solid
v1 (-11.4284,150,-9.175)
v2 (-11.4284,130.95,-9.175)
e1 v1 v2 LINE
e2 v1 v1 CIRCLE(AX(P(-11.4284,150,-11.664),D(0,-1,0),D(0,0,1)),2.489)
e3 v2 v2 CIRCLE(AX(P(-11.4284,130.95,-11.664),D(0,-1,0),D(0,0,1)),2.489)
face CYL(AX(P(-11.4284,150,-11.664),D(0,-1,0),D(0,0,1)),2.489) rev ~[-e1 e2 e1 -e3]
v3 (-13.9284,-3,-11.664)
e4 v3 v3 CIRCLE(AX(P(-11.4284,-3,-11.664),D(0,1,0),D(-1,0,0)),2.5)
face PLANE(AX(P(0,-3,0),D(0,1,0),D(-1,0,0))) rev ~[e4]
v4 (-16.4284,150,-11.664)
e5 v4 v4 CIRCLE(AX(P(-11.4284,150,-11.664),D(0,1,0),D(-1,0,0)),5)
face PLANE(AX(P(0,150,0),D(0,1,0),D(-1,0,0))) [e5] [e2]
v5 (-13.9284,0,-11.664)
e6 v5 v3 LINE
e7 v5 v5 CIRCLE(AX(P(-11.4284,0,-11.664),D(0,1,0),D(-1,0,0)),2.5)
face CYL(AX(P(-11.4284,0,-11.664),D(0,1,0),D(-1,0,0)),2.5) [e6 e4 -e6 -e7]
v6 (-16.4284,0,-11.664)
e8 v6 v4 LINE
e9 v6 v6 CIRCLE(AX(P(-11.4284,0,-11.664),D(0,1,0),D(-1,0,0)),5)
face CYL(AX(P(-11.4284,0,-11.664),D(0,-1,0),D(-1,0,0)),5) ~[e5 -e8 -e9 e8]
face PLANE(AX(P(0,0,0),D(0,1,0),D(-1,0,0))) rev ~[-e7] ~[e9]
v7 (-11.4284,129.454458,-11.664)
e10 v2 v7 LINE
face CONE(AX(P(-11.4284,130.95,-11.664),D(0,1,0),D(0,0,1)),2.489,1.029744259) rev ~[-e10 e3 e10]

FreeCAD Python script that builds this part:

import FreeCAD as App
import Part
import Sketcher
from FreeCAD import Vector

doc = App.newDocument("Part")
body = doc.addObject("PartDesign::Body", "Body")

sketch1 = body.newObject("Sketcher::SketchObject", "Sketch")
sketch1.AttachmentSupport = (doc.getObject("XZ_Plane"), [""])
sketch1.MapMode = "FlatFace"
sketch1.addGeometry(Part.Circle(Vector(-11, -12, 0), Vector(0, 0, 1), 5), False)
sketch1.addConstraint([
    Sketcher.Constraint("Diameter", 0, 10.0),
    Sketcher.Constraint("DistanceY", 0, 3, -1, 1, 11.664),
    Sketcher.Constraint("DistanceX", 0, 3, -1, 1, 11.4284),
])
pad1 = body.newObject("PartDesign::Pad", "Pad")
pad1.Profile = sketch1
pad1.Length = 150
pad1.Reversed = True

sketch2 = body.newObject("Sketcher::SketchObject", "Sketch001")
sketch2.AttachmentSupport = (doc.getObject("XZ_Plane"), [""])
sketch2.MapMode = "FlatFace"
sketch2.addGeometry(Part.Circle(Vector(-11.4, -11.7, 0), Vector(0, 0, 1), 2.5), False)
sketch2.addConstraint([
    Sketcher.Constraint("Diameter", 0, 5.0),
    Sketcher.Constraint("DistanceY", 0, 3, -1, 1, 11.664),
    Sketcher.Constraint("DistanceX", 0, 3, -1, 1, 11.4284),
])
pad2 = body.newObject("PartDesign::Pad", "Pad001")
pad2.Profile = sketch2
pad2.Length = 3

sketch3 = body.newObject("Sketcher::SketchObject", "Sketch002")
sketch3.AttachmentSupport = (doc.getObject("XZ_Plane"), [""])
sketch3.MapMode = "FlatFace"
sketch3.AttachmentOffset = App.Placement(Vector(0, 0, -150), App.Rotation())
sketch3.addGeometry(Part.Circle(Vector(-11.4, -11.7, 0), Vector(0, 0, 1), 2.5), False)
sketch3.addConstraint([
    Sketcher.Constraint("Diameter", 0, 4.978),
    Sketcher.Constraint("DistanceY", 0, 3, -1, 1, 11.664),
    Sketcher.Constraint("DistanceX", 0, 3, -1, 1, 11.4284),
])
doc.recompute()
hole = body.newObject("PartDesign::Hole", "Hole")
hole.Profile = sketch3
hole.ThreadType = "None"
hole.Diameter = 4.978
hole.DepthType = "Dimension"
hole.Depth = 19.05
hole.DrillPoint = "Angled"
hole.DrillPointAngle = 118
hole.Reversed = True

doc.recompute()
